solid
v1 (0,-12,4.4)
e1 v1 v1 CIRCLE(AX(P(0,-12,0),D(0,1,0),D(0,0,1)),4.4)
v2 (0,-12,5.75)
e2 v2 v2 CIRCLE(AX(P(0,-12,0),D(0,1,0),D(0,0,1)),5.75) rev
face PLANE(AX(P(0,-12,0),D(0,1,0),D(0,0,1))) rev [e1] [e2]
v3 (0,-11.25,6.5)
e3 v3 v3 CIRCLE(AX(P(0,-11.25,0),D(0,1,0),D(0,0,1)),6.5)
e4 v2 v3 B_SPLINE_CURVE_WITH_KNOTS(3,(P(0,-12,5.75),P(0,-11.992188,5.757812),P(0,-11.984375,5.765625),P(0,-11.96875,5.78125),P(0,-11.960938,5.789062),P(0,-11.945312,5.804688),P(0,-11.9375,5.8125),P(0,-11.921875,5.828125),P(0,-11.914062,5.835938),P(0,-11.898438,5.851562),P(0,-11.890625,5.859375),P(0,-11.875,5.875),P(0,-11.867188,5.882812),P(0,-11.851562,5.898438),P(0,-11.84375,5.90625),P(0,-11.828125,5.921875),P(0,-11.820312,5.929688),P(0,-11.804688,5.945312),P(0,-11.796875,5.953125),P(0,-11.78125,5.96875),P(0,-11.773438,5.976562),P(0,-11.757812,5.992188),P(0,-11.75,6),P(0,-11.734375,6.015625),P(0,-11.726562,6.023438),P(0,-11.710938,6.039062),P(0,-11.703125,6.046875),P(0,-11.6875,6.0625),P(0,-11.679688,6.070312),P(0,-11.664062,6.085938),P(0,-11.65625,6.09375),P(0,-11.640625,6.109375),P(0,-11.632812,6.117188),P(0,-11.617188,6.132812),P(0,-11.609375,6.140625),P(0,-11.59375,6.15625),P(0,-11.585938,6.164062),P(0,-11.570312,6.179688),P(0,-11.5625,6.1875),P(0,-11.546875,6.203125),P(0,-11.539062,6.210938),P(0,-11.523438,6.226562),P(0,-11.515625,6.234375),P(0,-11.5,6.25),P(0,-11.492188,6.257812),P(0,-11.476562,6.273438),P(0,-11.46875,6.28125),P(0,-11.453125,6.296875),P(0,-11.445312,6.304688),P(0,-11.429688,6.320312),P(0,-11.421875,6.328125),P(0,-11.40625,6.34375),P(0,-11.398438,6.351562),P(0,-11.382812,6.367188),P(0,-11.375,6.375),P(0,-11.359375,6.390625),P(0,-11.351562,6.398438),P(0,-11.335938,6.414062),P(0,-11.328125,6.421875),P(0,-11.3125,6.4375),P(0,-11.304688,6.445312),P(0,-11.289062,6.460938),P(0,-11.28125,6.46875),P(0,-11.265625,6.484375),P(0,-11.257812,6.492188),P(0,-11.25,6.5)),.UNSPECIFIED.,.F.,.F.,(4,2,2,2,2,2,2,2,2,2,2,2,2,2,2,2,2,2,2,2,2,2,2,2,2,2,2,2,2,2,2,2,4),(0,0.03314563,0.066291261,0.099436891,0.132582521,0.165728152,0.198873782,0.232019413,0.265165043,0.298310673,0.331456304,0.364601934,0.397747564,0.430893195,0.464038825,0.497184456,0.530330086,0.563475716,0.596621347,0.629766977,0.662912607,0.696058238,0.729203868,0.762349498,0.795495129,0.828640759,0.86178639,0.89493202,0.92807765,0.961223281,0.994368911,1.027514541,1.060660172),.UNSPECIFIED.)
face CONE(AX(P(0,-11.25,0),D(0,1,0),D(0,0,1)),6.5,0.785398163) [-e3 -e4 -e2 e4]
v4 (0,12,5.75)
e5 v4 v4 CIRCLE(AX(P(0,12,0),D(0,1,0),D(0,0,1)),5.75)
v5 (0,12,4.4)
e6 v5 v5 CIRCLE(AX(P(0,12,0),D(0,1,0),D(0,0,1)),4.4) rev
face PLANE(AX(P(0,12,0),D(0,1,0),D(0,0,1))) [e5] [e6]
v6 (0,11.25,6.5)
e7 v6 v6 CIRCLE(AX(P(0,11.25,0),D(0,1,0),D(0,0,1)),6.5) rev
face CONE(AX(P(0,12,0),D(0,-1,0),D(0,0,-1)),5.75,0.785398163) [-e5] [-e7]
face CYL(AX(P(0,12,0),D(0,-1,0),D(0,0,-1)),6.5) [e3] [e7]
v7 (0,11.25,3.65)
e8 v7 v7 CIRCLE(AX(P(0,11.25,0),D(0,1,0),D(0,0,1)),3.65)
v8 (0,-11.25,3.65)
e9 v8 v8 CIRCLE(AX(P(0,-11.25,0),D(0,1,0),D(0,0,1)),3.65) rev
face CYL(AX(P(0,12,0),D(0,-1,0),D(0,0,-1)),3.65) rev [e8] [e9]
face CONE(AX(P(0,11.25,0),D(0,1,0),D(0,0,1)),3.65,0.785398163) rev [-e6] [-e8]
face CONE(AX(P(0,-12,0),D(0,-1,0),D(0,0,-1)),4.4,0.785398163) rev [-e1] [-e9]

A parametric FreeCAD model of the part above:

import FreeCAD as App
import Part
import Sketcher


def edges_at(feature, points):
    """Names of the edges that pass closest to the given points."""
    edges = feature.Shape.Edges
    near = lambda p: min(range(len(edges)), key=lambda i: edges[i].distToShape(Part.Vertex(*p))[0])
    return sorted({f"Edge{near(p) + 1}" for p in points})

doc = App.newDocument("Part")
body = doc.addObject("PartDesign::Body", "Body")

sketch1 = body.newObject("Sketcher::SketchObject", "Sketch")
sketch1.AttachmentSupport = (doc.getObject("XZ_Plane"), [""])
sketch1.MapMode = "FlatFace"
sketch1.addGeometry(Part.Circle(App.Vector(0, 0, 0), App.Vector(0, 0, 1), 6.5), False)
sketch1.addGeometry(Part.Circle(App.Vector(0, 0, 0), App.Vector(0, 0, 1), 3.6), False)
sketch1.addConstraint(Sketcher.Constraint("Coincident", 0, 3, -1, 1))
sketch1.addConstraint(Sketcher.Constraint("Coincident", 1, 3, -1, 1))
sketch1.addConstraint(Sketcher.Constraint("Diameter", 0, 13.0))
sketch1.addConstraint(Sketcher.Constraint("Diameter", 1, 7.3))
pad1 = body.newObject("PartDesign::Pad", "Pad")
pad1.Profile = sketch1
pad1.Length = 24
pad1.Midplane = True
doc.recompute()

chamfer = body.newObject("PartDesign::Chamfer", "Chamfer")
chamfer.Base = (pad1, edges_at(pad1, [
    (0, -12, -6.5),
    (0, 12, -6.5),
    (0, -12, -3.65),
    (0, 12, -3.65),
]))
chamfer.Size = 0.75

doc.recompute()
